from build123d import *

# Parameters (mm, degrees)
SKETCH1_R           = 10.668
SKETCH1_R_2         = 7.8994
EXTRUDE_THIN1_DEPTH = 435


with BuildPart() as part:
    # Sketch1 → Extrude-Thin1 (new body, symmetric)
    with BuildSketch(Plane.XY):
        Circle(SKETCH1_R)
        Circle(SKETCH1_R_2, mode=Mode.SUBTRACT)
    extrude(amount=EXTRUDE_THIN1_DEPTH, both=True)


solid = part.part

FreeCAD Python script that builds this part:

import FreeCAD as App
import Part
import Sketcher
Q = App.Units.Quantity

doc = App.newDocument("Part")
params = doc.addObject("Spreadsheet::Sheet", "Params")
for row, (alias, value) in enumerate([
    ("sketch1_diameter", "0.84 in"),
    ("sketch1_diameter2", "0.622 in"),
    ("pad1_length", "870 mm"),
], start=1):
    params.set(f"A{row}", alias)
    params.set(f"B{row}", "=" + value)
    params.setAlias(f"B{row}", alias)

body = doc.addObject("PartDesign::Body", "Body")

sketch1 = body.newObject("Sketcher::SketchObject", "Sketch")
sketch1.AttachmentSupport = (doc.getObject("XY_Plane"), [""])
sketch1.MapMode = "FlatFace"
sketch1.addGeometry([
    Part.Circle(App.Vector(0, 0, 0), App.Vector(0, 0, 1), 11),
    Part.Circle(App.Vector(0, 0, 0), App.Vector(0, 0, 1), 8),
], False)
sketch1.addConstraint([
    Sketcher.Constraint("Coincident", 0, 3, -1, 1),
    Sketcher.Constraint("Coincident", 1, 3, -1, 1),
    Sketcher.Constraint("Diameter", 0, Q("0.84 in")),
    Sketcher.Constraint("Diameter", 1, Q("0.622 in")),
])
sketch1.setExpression("Constraints[2]", "Params.sketch1_diameter")
sketch1.setExpression("Constraints[3]", "Params.sketch1_diameter2")
pad1 = body.newObject("PartDesign::Pad", "Pad")
pad1.Profile = sketch1
pad1.setExpression("Length", "Params.pad1_length")
pad1.Midplane = True

doc.recompute()
